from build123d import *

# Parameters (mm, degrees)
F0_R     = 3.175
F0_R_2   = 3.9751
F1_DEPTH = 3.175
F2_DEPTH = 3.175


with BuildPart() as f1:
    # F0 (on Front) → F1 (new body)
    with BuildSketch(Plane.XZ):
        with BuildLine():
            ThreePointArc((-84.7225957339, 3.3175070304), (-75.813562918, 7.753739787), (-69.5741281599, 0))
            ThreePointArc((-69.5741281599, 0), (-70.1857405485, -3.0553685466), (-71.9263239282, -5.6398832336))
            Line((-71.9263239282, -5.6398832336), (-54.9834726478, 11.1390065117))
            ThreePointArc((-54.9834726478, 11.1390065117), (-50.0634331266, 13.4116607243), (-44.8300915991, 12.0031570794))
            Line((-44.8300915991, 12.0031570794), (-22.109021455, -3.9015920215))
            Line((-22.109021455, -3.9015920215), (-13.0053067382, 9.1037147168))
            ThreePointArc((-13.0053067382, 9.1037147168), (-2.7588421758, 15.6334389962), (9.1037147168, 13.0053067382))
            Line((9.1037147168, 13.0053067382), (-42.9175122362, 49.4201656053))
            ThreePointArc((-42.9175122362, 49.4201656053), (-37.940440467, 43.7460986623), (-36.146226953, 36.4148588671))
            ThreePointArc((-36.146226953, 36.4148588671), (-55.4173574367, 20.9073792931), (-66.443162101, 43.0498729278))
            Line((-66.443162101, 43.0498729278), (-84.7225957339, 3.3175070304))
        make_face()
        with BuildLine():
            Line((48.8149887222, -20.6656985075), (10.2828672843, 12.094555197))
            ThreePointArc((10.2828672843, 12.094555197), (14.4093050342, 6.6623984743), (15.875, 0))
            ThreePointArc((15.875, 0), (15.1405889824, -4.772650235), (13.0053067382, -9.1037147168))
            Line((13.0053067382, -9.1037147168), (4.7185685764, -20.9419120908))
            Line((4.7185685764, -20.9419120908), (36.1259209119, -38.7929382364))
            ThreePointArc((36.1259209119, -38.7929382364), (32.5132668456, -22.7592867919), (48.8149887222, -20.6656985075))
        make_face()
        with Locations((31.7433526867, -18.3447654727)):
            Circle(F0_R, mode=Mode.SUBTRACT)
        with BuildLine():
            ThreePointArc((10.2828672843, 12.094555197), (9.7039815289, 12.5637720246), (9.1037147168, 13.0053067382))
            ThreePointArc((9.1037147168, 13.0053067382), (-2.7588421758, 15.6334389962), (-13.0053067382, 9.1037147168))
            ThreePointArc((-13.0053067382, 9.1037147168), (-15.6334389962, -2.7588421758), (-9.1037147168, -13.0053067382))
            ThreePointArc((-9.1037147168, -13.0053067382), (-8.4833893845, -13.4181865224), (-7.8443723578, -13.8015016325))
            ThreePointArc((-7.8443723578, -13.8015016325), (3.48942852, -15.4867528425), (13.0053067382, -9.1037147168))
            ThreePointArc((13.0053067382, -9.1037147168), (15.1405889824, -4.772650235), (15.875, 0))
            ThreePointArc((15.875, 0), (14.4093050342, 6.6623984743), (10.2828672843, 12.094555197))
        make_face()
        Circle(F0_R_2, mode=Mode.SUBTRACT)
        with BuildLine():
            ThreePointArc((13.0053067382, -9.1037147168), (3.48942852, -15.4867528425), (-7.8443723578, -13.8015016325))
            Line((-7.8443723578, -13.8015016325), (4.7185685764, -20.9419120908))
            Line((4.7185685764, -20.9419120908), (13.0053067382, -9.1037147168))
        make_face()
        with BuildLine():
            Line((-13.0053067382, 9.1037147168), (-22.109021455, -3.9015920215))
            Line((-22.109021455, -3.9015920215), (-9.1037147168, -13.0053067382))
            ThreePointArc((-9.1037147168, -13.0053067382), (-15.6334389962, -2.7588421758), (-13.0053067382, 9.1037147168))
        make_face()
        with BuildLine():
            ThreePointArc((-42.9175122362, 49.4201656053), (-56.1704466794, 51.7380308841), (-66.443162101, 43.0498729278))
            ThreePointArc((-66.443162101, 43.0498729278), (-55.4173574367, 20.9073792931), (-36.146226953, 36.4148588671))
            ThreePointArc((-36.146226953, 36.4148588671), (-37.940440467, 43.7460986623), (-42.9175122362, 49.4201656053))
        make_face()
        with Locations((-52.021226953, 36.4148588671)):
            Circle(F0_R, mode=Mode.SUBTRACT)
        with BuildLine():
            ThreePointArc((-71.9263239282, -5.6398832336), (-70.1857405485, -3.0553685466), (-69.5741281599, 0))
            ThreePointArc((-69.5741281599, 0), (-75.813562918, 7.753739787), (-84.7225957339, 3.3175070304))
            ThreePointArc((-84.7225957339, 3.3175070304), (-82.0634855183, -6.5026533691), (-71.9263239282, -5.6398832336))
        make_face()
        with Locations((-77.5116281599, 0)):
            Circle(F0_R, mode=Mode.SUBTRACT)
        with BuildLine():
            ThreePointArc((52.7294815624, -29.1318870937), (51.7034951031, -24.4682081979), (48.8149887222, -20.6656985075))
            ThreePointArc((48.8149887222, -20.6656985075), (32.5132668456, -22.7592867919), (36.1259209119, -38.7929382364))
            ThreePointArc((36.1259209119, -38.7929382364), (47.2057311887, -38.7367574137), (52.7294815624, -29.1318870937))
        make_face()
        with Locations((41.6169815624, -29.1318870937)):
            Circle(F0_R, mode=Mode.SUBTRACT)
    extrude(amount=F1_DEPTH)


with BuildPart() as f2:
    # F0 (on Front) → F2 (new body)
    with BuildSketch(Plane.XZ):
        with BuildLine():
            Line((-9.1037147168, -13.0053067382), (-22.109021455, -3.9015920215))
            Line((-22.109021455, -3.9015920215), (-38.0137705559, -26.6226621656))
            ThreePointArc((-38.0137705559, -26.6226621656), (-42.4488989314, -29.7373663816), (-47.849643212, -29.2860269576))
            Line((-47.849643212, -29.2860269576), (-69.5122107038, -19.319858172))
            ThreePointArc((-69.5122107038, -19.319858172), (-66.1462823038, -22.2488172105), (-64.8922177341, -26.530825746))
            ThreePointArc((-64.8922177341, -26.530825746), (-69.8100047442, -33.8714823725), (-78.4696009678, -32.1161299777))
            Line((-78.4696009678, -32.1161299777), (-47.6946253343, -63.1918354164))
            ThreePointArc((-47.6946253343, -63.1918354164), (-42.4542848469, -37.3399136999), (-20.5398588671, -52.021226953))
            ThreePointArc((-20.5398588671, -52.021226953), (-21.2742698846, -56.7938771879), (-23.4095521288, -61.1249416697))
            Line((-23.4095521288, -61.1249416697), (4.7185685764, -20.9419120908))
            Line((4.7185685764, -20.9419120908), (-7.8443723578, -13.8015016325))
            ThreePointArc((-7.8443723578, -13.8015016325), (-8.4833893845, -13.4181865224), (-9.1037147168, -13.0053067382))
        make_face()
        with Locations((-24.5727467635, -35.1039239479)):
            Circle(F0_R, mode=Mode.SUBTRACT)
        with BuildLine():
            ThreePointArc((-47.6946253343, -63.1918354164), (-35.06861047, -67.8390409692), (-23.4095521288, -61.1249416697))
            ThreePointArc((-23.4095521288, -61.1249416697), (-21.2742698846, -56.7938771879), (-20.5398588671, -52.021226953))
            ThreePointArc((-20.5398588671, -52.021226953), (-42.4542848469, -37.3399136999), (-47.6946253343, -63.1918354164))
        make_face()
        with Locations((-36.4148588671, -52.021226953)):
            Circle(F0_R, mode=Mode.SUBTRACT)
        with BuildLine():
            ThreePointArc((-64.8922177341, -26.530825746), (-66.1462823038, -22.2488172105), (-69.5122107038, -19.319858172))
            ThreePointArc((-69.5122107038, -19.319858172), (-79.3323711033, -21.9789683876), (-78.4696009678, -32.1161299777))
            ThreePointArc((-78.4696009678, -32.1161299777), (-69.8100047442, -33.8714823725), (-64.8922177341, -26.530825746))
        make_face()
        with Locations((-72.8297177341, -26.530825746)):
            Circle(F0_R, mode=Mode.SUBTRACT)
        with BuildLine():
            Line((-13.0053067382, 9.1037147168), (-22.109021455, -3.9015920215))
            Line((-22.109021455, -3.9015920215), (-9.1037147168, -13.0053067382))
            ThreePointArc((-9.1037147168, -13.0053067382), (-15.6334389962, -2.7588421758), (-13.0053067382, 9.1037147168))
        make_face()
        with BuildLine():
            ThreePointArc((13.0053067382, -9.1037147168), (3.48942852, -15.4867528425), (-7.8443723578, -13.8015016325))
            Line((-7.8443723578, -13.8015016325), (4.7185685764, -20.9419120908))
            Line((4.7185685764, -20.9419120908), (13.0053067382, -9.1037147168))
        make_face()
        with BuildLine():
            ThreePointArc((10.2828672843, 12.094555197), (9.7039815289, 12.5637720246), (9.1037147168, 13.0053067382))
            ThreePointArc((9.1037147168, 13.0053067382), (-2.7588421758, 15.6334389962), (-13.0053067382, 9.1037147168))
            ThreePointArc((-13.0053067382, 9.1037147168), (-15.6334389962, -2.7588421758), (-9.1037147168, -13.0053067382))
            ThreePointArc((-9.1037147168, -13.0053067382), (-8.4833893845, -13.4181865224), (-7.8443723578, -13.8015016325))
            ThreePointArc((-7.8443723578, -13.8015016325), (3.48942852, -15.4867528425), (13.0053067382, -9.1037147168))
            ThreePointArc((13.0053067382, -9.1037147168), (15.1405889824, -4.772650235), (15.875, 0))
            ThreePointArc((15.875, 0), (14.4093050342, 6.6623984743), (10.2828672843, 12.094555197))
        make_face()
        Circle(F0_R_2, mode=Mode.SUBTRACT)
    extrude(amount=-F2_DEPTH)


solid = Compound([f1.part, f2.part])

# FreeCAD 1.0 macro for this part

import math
import FreeCAD as App
import Part
import Sketcher
Q = App.Units.Quantity

doc = App.newDocument("Part")
body = doc.addObject("PartDesign::Body", "Body")

# Sketch on XZ plane
sketch1 = body.newObject("Sketcher::SketchObject", "Sketch")
sketch1.AttachmentSupport = (doc.getObject("XZ_Plane"), [""])
sketch1.MapMode = "FlatFace"
sketch1.addGeometry(Part.LineSegment(App.Vector(-66.443162, 43.049873, 0), App.Vector(-84.722596, 3.317507, 0)), False)
sketch1.addGeometry(Part.ArcOfCircle(Part.Circle(App.Vector(-77.511628, 0, 0), App.Vector(0, 0, 1), 7.9375), math.radians(155.29454), math.radians(314.721419)), False)
sketch1.addGeometry(Part.LineSegment(App.Vector(-71.926324, -5.639883, 0), App.Vector(-54.983473, 11.139007, 0)), False)
sketch1.addGeometry(Part.ArcOfCircle(Part.Circle(App.Vector(-49.389232, 5.490099, 0), App.Vector(0, 0, 1), 7.9502), math.radians(55.00798), math.radians(134.721419)), False)
sketch1.addGeometry(Part.LineSegment(App.Vector(-44.830092, 12.003157, 0), App.Vector(-22.109021, -3.901592, 0)), False)
sketch1.addGeometry(Part.LineSegment(App.Vector(-22.109021, -3.901592, 0), App.Vector(-9.103715, -13.005307, 0)), False)
sketch1.addGeometry(Part.ArcOfCircle(Part.Circle(App.Vector(0, 0, 0), App.Vector(0, 0, 1), 15.875), math.radians(-124.99202), math.radians(-119.612641)), False)
sketch1.addGeometry(Part.LineSegment(App.Vector(-7.844372, -13.801502, 0), App.Vector(4.718569, -20.941912, 0)), False)
sketch1.addGeometry(Part.LineSegment(App.Vector(4.718569, -20.941912, 0), App.Vector(36.125921, -38.792938, 0)), False)
sketch1.addGeometry(Part.ArcOfCircle(Part.Circle(App.Vector(41.616982, -29.131887, 0), App.Vector(0, 0, 1), 11.1125), math.radians(-119.612641), math.radians(0)), False)
sketch1.addGeometry(Part.ArcOfCircle(Part.Circle(App.Vector(41.616982, -29.131887, 0), App.Vector(0, 0, 1), 11.1125), math.radians(0), math.radians(49.628601)), False)
sketch1.addGeometry(Part.LineSegment(App.Vector(48.814989, -20.665699, 0), App.Vector(10.282867, 12.094555, 0)), False)
sketch1.addGeometry(Part.ArcOfCircle(Part.Circle(App.Vector(0, 0, 0), App.Vector(0, 0, 1), 15.875), math.radians(49.628601), math.radians(55.00798)), False)
sketch1.addGeometry(Part.LineSegment(App.Vector(9.103715, 13.005307, 0), App.Vector(-42.917512, 49.420166, 0)), False)
sketch1.addGeometry(Part.ArcOfCircle(Part.Circle(App.Vector(-52.021227, 36.414859, 0), App.Vector(0, 0, 1), 15.875), math.radians(55.00798), math.radians(155.29454)), False)
sketch1.addGeometry(Part.Circle(App.Vector(-77.511628, 0, 0), App.Vector(0, 0, 1), 3.175), False)
sketch1.addGeometry(Part.Circle(App.Vector(41.616982, -29.131887, 0), App.Vector(0, 0, 1), 3.175), False)
sketch1.addGeometry(Part.Circle(App.Vector(31.743353, -18.344765, 0), App.Vector(0, 0, 1), 3.175), False)
sketch1.addGeometry(Part.Circle(App.Vector(0, 0, 0), App.Vector(0, 0, 1), 3.9751), False)
sketch1.addGeometry(Part.Circle(App.Vector(-52.021227, 36.414859, 0), App.Vector(0, 0, 1), 3.175), False)
sketch1.addConstraint(Sketcher.Constraint("Tangent", 0, 2, 1, 1))
sketch1.addConstraint(Sketcher.Constraint("Tangent", 1, 2, 2, 1))
sketch1.addConstraint(Sketcher.Constraint("Tangent", 2, 2, 3, 2))
sketch1.addConstraint(Sketcher.Constraint("Tangent", 3, 1, 4, 1))
sketch1.addConstraint(Sketcher.Constraint("Coincident", 4, 2, 5, 1))
sketch1.addConstraint(Sketcher.Constraint("Tangent", 5, 2, 6, 1))
sketch1.addConstraint(Sketcher.Constraint("Tangent", 6, 2, 7, 1))
sketch1.addConstraint(Sketcher.Constraint("Coincident", 7, 2, 8, 1))
sketch1.addConstraint(Sketcher.Constraint("Tangent", 8, 2, 9, 1))
sketch1.addConstraint(Sketcher.Constraint("Tangent", 9, 2, 10, 1))
sketch1.addConstraint(Sketcher.Constraint("Tangent", 10, 2, 11, 1))
sketch1.addConstraint(Sketcher.Constraint("Tangent", 11, 2, 12, 1))
sketch1.addConstraint(Sketcher.Constraint("Tangent", 12, 2, 13, 1))
sketch1.addConstraint(Sketcher.Constraint("Tangent", 13, 2, 14, 1))
sketch1.addConstraint(Sketcher.Constraint("Tangent", 14, 2, 0, 1))
sketch1.addConstraint(Sketcher.Constraint("Coincident", 6, 3, -1, 1))
sketch1.addConstraint(Sketcher.Constraint("Coincident", 12, 3, -1, 1))
sketch1.addConstraint(Sketcher.Constraint("Coincident", 18, 3, -1, 1))
sketch1.addConstraint(Sketcher.Constraint("Coincident", 15, 3, 1, 3))
sketch1.addConstraint(Sketcher.Constraint("Coincident", 16, 3, 9, 3))
sketch1.addConstraint(Sketcher.Constraint("Coincident", 19, 3, 14, 3))
sketch1.addConstraint(Sketcher.Constraint("Equal", 9, 10))
sketch1.addConstraint(Sketcher.Constraint("Equal", 6, 12))
sketch1.addConstraint(Sketcher.Constraint("Equal", 12, 14))
sketch1.addConstraint(Sketcher.Constraint("Equal", 15, 16))
sketch1.addConstraint(Sketcher.Constraint("Equal", 16, 17))
sketch1.addConstraint(Sketcher.Constraint("Equal", 17, 19))
sketch1.addConstraint(Sketcher.Constraint("PointOnObject", 1, 3, -1))
sketch1.addConstraint(Sketcher.Constraint("Parallel", 4, 5))
sketch1.addConstraint(Sketcher.Constraint("Parallel", 7, 8))
sketch1.addConstraint(Sketcher.Constraint("Parallel", 5, 13))
sketch1.addConstraint(Sketcher.Constraint("Horizontal", 16, 3, 9, 2))
sketch1.addConstraint(Sketcher.Constraint("Diameter", 15, Q("0.25 in")))
sketch1.addConstraint(Sketcher.Constraint("Diameter", 18, Q("0.313 in")))
sketch1.addConstraint(Sketcher.Constraint("Radius", 1, Q("0.3125 in")))
sketch1.addConstraint(Sketcher.Constraint("Radius", 3, Q("0.313 in")))
sketch1.addConstraint(Sketcher.Constraint("Radius", 6, Q("0.625 in")))
sketch1.addConstraint(Sketcher.Constraint("Radius", 9, Q("0.4375 in")))
sketch1.addConstraint(Sketcher.Constraint("Distance", 13, Q("2.5 in")))
sketch1.addConstraint(Sketcher.Constraint("Distance", 5, Q("0.625 in")))
sketch1.addConstraint(Sketcher.Constraint("Distance", 4, 27.734601))
sketch1.addConstraint(Sketcher.Constraint("DistanceY", -1, 1, 3, 3, 5.490099))
sketch1.addConstraint(Sketcher.Constraint("DistanceY", 6, 2, -1, 1, 13.801502))
sketch1.addConstraint(Sketcher.Constraint("DistanceY", 10, 2, -1, 1, 20.665699))
sketch1.addConstraint(Sketcher.Constraint("DistanceX", 1, 3, 14, 3, 25.490401))
sketch1.addConstraint(Sketcher.Constraint("Distance", 7, 14.450361))
sketch1.addConstraint(Sketcher.Constraint("DistanceX", 17, 3, 9, 3, 9.873629))
sketch1.addConstraint(Sketcher.Constraint("DistanceY", 9, 3, 17, 3, 10.787122))
pad1 = body.newObject("PartDesign::Pad", "Pad")
pad1.Profile = sketch1
pad1.Length = Q("0.125 in")
body2 = doc.addObject("PartDesign::Body", "Body001")

# Sketch on XZ plane
sketch2 = body2.newObject("Sketcher::SketchObject", "Sketch001")
sketch2.AttachmentSupport = (doc.getObject("XZ_Plane001"), [""])
sketch2.MapMode = "FlatFace"
sketch2.addGeometry(Part.LineSegment(App.Vector(-13.005307, 9.103715, 0), App.Vector(-22.109021, -3.901592, 0)), False)
sketch2.addGeometry(Part.LineSegment(App.Vector(-22.109021, -3.901592, 0), App.Vector(-38.013771, -26.622662, 0)), False)
sketch2.addGeometry(Part.ArcOfCircle(Part.Circle(App.Vector(-44.526828, -22.063522, 0), App.Vector(0, 0, 1), 7.9502), math.radians(-114.70546), math.radians(-34.99202)), False)
sketch2.addGeometry(Part.LineSegment(App.Vector(-47.849643, -29.286027, 0), App.Vector(-69.512211, -19.319858, 0)), False)
sketch2.addGeometry(Part.ArcOfCircle(Part.Circle(App.Vector(-72.829718, -26.530826, 0), App.Vector(0, 0, 1), 7.9375), math.radians(65.29454), math.radians(224.721419)), False)
sketch2.addGeometry(Part.LineSegment(App.Vector(-78.469601, -32.11613, 0), App.Vector(-47.694625, -63.191835, 0)), False)
sketch2.addGeometry(Part.ArcOfCircle(Part.Circle(App.Vector(-36.414859, -52.021227, 0), App.Vector(0, 0, 1), 15.875), math.radians(-135.278581), math.radians(-34.99202)), False)
sketch2.addGeometry(Part.LineSegment(App.Vector(-23.409552, -61.124942, 0), App.Vector(13.005307, -9.103715, 0)), False)
sketch2.addGeometry(Part.ArcOfCircle(Part.Circle(App.Vector(0, 0, 0), App.Vector(0, 0, 1), 15.875), math.radians(-34.99202), math.radians(0)), False)
sketch2.addGeometry(Part.ArcOfCircle(Part.Circle(App.Vector(0, 0, 0), App.Vector(0, 0, 1), 15.875), math.radians(0), math.radians(49.628601)), False)
sketch2.addGeometry(Part.ArcOfCircle(Part.Circle(App.Vector(0, 0, 0), App.Vector(0, 0, 1), 15.875), math.radians(49.628601), math.radians(55.00798)), False)
sketch2.addGeometry(Part.ArcOfCircle(Part.Circle(App.Vector(0, 0, 0), App.Vector(0, 0, 1), 15.875), math.radians(55.00798), math.radians(145.00798)), False)
sketch2.addGeometry(Part.Circle(App.Vector(-36.414859, -52.021227, 0), App.Vector(0, 0, 1), 3.175), False)
sketch2.addGeometry(Part.Circle(App.Vector(-72.829718, -26.530826, 0), App.Vector(0, 0, 1), 3.175), False)
sketch2.addGeometry(Part.Circle(App.Vector(-24.572747, -35.103924, 0), App.Vector(0, 0, 1), 3.175), False)
sketch2.addGeometry(Part.Circle(App.Vector(0, 0, 0), App.Vector(0, 0, 1), 3.9751), False)
sketch2.addConstraint(Sketcher.Constraint("Coincident", 0, 2, 1, 1))
sketch2.addConstraint(Sketcher.Constraint("Tangent", 1, 2, 2, 2))
sketch2.addConstraint(Sketcher.Constraint("Tangent", 2, 1, 3, 1))
sketch2.addConstraint(Sketcher.Constraint("Tangent", 3, 2, 4, 1))
sketch2.addConstraint(Sketcher.Constraint("Tangent", 4, 2, 5, 1))
sketch2.addConstraint(Sketcher.Constraint("Tangent", 5, 2, 6, 1))
sketch2.addConstraint(Sketcher.Constraint("Tangent", 6, 2, 7, 1))
sketch2.addConstraint(Sketcher.Constraint("Tangent", 7, 2, 8, 1))
sketch2.addConstraint(Sketcher.Constraint("Tangent", 8, 2, 9, 1))
sketch2.addConstraint(Sketcher.Constraint("Tangent", 9, 2, 10, 1))
sketch2.addConstraint(Sketcher.Constraint("Tangent", 10, 2, 11, 1))
sketch2.addConstraint(Sketcher.Constraint("Tangent", 11, 2, 0, 1))
sketch2.addConstraint(Sketcher.Constraint("Coincident", 8, 3, -1, 1))
sketch2.addConstraint(Sketcher.Constraint("Coincident", 10, 3, -1, 1))
sketch2.addConstraint(Sketcher.Constraint("Coincident", 15, 3, -1, 1))
sketch2.addConstraint(Sketcher.Constraint("Coincident", 12, 3, 6, 3))
sketch2.addConstraint(Sketcher.Constraint("Coincident", 13, 3, 4, 3))
sketch2.addConstraint(Sketcher.Constraint("Equal", 6, 8))
sketch2.addConstraint(Sketcher.Constraint("Equal", 10, 11))
sketch2.addConstraint(Sketcher.Constraint("Equal", 12, 13))
sketch2.addConstraint(Sketcher.Constraint("Equal", 13, 14))
sketch2.addConstraint(Sketcher.Constraint("PointOnObject", 8, 2, -1))
sketch2.addConstraint(Sketcher.Constraint("Parallel", 0, 1))
sketch2.addConstraint(Sketcher.Constraint("Parallel", 1, 7))
sketch2.addConstraint(Sketcher.Constraint("Diameter", 12, Q("0.25 in")))
sketch2.addConstraint(Sketcher.Constraint("Diameter", 15, Q("0.313 in")))
sketch2.addConstraint(Sketcher.Constraint("Radius", 2, Q("0.313 in")))
sketch2.addConstraint(Sketcher.Constraint("Radius", 4, Q("0.3125 in")))
sketch2.addConstraint(Sketcher.Constraint("Radius", 6, Q("0.625 in")))
sketch2.addConstraint(Sketcher.Constraint("Distance", 7, Q("2.5 in")))
sketch2.addConstraint(Sketcher.Constraint("Distance", 0, Q("0.625 in")))
sketch2.addConstraint(Sketcher.Constraint("Distance", 1, 27.734601))
sketch2.addConstraint(Sketcher.Constraint("DistanceX", 4, 2, -1, 1, 78.469601))
sketch2.addConstraint(Sketcher.Constraint("DistanceY", 6, 3, 4, 3, 25.490401))
sketch2.addConstraint(Sketcher.Constraint("DistanceY", 2, 1, 4, 3, 2.755201))
sketch2.addConstraint(Sketcher.Constraint("DistanceX", 2, 3, 14, 3, 19.954081))
sketch2.addConstraint(Sketcher.Constraint("DistanceY", 14, 3, 1, 2, 8.481262))
sketch2.addConstraint(Sketcher.Constraint("DistanceY", 9, 2, 10, 2, 0.910752))
sketch2.addConstraint(Sketcher.Constraint("DistanceX", -1, 1, 9, 2, 10.282867))
pad2 = body2.newObject("PartDesign::Pad", "Pad001")
pad2.Profile = sketch2
pad2.Length = Q("0.125 in")
pad2.Reversed = True

doc.recompute()
